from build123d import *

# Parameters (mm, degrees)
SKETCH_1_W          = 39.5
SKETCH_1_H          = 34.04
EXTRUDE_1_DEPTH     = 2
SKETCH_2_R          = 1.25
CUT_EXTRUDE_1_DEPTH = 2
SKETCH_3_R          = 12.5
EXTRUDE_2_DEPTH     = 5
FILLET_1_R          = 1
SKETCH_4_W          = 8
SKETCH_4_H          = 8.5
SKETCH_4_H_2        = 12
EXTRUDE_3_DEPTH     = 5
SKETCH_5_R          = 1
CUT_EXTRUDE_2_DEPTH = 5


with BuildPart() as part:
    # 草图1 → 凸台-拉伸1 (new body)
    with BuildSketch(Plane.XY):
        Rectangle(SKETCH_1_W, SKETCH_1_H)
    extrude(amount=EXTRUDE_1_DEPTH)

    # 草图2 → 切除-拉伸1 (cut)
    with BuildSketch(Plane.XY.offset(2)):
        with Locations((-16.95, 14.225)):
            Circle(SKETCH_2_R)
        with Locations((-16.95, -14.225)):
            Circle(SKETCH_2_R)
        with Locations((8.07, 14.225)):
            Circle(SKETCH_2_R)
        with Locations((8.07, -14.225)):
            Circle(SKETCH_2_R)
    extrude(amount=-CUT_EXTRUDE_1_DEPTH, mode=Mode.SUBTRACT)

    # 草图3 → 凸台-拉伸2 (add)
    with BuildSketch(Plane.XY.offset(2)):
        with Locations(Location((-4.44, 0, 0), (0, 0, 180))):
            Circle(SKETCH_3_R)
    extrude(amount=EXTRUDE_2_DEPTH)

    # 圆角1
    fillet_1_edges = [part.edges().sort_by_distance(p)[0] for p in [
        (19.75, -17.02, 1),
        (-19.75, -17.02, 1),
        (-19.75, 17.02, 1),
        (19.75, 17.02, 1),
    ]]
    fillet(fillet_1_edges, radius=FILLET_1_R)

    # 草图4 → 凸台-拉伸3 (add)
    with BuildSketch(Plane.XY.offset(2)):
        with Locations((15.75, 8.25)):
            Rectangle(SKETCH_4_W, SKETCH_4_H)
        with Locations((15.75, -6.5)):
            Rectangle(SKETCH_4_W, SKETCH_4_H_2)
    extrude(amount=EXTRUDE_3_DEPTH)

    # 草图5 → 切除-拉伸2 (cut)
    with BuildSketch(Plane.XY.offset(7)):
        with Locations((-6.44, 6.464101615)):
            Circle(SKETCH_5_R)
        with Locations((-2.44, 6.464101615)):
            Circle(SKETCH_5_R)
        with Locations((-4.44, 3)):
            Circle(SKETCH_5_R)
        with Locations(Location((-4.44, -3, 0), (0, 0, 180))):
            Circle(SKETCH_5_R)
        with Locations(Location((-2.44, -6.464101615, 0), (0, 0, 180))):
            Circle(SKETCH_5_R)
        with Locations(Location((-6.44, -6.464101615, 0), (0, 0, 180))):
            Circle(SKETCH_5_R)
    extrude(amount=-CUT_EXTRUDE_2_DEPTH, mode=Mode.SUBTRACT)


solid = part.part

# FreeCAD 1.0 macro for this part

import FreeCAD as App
import Part
import Sketcher
Q = App.Units.Quantity


def edges_at(feature, points):
    """Names of the edges that pass closest to the given points."""
    edges = feature.Shape.Edges
    near = lambda p: min(range(len(edges)), key=lambda i: edges[i].distToShape(Part.Vertex(*p))[0])
    return sorted({f"Edge{near(p) + 1}" for p in points})

doc = App.newDocument("Part")
body = doc.addObject("PartDesign::Body", "Body")

sketch1 = body.newObject("Sketcher::SketchObject", "Sketch")
sketch1.AttachmentSupport = (doc.getObject("XY_Plane"), [""])
sketch1.MapMode = "FlatFace"
sketch1.addGeometry([
    Part.LineSegment(App.Vector(-19.75, 17.02, 0), App.Vector(-19.75, -17.02, 0)),
    Part.LineSegment(App.Vector(-19.75, -17.02, 0), App.Vector(19.75, -17.02, 0)),
    Part.LineSegment(App.Vector(19.75, -17.02, 0), App.Vector(19.75, 17.02, 0)),
    Part.LineSegment(App.Vector(19.75, 17.02, 0), App.Vector(-19.75, 17.02, 0)),
], False)
sketch1.addConstraint([
    Sketcher.Constraint("Coincident", 0, 2, 1, 1),
    Sketcher.Constraint("Coincident", 1, 2, 2, 1),
    Sketcher.Constraint("Coincident", 2, 2, 3, 1),
    Sketcher.Constraint("Coincident", 3, 2, 0, 1),
    Sketcher.Constraint("Vertical", 0),
    Sketcher.Constraint("Horizontal", 1),
    Sketcher.Constraint("Vertical", 2),
    Sketcher.Constraint("Horizontal", 3),
    Sketcher.Constraint("Symmetric", 0, 2, 2, 2, -1, 1),
    Sketcher.Constraint("DistanceX", 1, 1, 1, 2, Q("39.5 mm")),
    Sketcher.Constraint("DistanceY", 0, 2, 0, 1, Q("34.04 mm")),
])
pad1 = body.newObject("PartDesign::Pad", "Pad")
pad1.Profile = sketch1
pad1.Length = 2

sketch2 = body.newObject("Sketcher::SketchObject", "Sketch001")
sketch2.AttachmentSupport = (doc.getObject("XY_Plane"), [""])
sketch2.MapMode = "FlatFace"
sketch2.AttachmentOffset = App.Placement(App.Vector(0, 0, 2), App.Rotation())
sketch2.addGeometry([
    Part.Circle(App.Vector(-16.95, 14.225, 0), App.Vector(0, 0, 1), 1.25),
    Part.Circle(App.Vector(-16.95, -14.225, 0), App.Vector(0, 0, 1), 1.25),
    Part.Circle(App.Vector(8.07, 14.225, 0), App.Vector(0, 0, 1), 1.25),
    Part.Circle(App.Vector(8.07, -14.225, 0), App.Vector(0, 0, 1), 1.25),
], False)
sketch2.addConstraint([
    Sketcher.Constraint("Equal", 0, 1),
    Sketcher.Constraint("Equal", 1, 2),
    Sketcher.Constraint("Equal", 2, 3),
    Sketcher.Constraint("Symmetric", 0, 3, 1, 3, -1),
    Sketcher.Constraint("Symmetric", 2, 3, 3, 3, -1),
    Sketcher.Constraint("Horizontal", 0, 3, 2, 3),
    Sketcher.Constraint("Diameter", 0, Q("2.5 mm")),
    Sketcher.Constraint("DistanceX", 0, 3, -1, 1, Q("16.95 mm")),
    Sketcher.Constraint("DistanceX", -1, 1, 2, 3, Q("8.07 mm")),
    Sketcher.Constraint("DistanceY", 1, 3, 0, 3, Q("28.45 mm")),
])
pocket1 = body.newObject("PartDesign::Pocket", "Pocket")
pocket1.Profile = sketch2
pocket1.Length = 2

sketch3 = body.newObject("Sketcher::SketchObject", "Sketch002")
sketch3.AttachmentSupport = (doc.getObject("XY_Plane"), [""])
sketch3.MapMode = "FlatFace"
sketch3.AttachmentOffset = App.Placement(App.Vector(0, 0, 2), App.Rotation())
sketch3.addGeometry(Part.Circle(App.Vector(-4.44, 0, 0), App.Vector(0, 0, 1), 12.5), False)
sketch3.addConstraint([
    Sketcher.Constraint("PointOnObject", 0, 3, -1),
    Sketcher.Constraint("Diameter", 0, Q("25 mm")),
    Sketcher.Constraint("DistanceX", 0, 3, -1, 1, Q("4.44 mm")),
])
pad2 = body.newObject("PartDesign::Pad", "Pad001")
pad2.Profile = sketch3
pad2.Length = 5
doc.recompute()

fillet = body.newObject("PartDesign::Fillet", "Fillet")
fillet.Base = (pad2, edges_at(pad2, [
    (19.75, -17.02, 1),
    (-19.75, -17.02, 1),
    (-19.75, 17.02, 1),
    (19.75, 17.02, 1),
]))
fillet.Radius = 1

sketch4 = body.newObject("Sketcher::SketchObject", "Sketch003")
sketch4.AttachmentSupport = (doc.getObject("XY_Plane"), [""])
sketch4.MapMode = "FlatFace"
sketch4.AttachmentOffset = App.Placement(App.Vector(0, 0, 2), App.Rotation())
sketch4.addGeometry([
    Part.LineSegment(App.Vector(11.75, 12.5, 0), App.Vector(11.75, 4, 0)),
    Part.LineSegment(App.Vector(11.75, 4, 0), App.Vector(19.75, 4, 0)),
    Part.LineSegment(App.Vector(19.75, 4, 0), App.Vector(19.75, 12.5, 0)),
    Part.LineSegment(App.Vector(19.75, 12.5, 0), App.Vector(11.75, 12.5, 0)),
    Part.LineSegment(App.Vector(11.75, -0.5, 0), App.Vector(11.75, -12.5, 0)),
    Part.LineSegment(App.Vector(11.75, -12.5, 0), App.Vector(19.75, -12.5, 0)),
    Part.LineSegment(App.Vector(19.75, -12.5, 0), App.Vector(19.75, -0.5, 0)),
    Part.LineSegment(App.Vector(19.75, -0.5, 0), App.Vector(11.75, -0.5, 0)),
], False)
sketch4.addConstraint([
    Sketcher.Constraint("Coincident", 0, 2, 1, 1),
    Sketcher.Constraint("Coincident", 1, 2, 2, 1),
    Sketcher.Constraint("Coincident", 2, 2, 3, 1),
    Sketcher.Constraint("Coincident", 3, 2, 0, 1),
    Sketcher.Constraint("Coincident", 4, 2, 5, 1),
    Sketcher.Constraint("Coincident", 5, 2, 6, 1),
    Sketcher.Constraint("Coincident", 6, 2, 7, 1),
    Sketcher.Constraint("Coincident", 7, 2, 4, 1),
    Sketcher.Constraint("Vertical", 0),
    Sketcher.Constraint("Horizontal", 1),
    Sketcher.Constraint("Vertical", 2),
    Sketcher.Constraint("Horizontal", 3),
    Sketcher.Constraint("Vertical", 4),
    Sketcher.Constraint("Horizontal", 5),
    Sketcher.Constraint("Vertical", 6),
    Sketcher.Constraint("Horizontal", 7),
    Sketcher.Constraint("Symmetric", 3, 2, 4, 2, -1),
    Sketcher.Constraint("Vertical", 2, 2, 5, 2),
    Sketcher.Constraint("DistanceX", 1, 1, 1, 2, Q("8 mm")),
    Sketcher.Constraint("DistanceY", 4, 2, 4, 1, Q("12 mm")),
    Sketcher.Constraint("DistanceY", 0, 2, 0, 1, Q("8.5 mm")),
    Sketcher.Constraint("DistanceY", -1, 1, 0, 2, Q("4 mm")),
    Sketcher.Constraint("DistanceX", -1, 1, 0, 2, Q("11.75 mm")),
])
pad3 = body.newObject("PartDesign::Pad", "Pad002")
pad3.Profile = sketch4
pad3.Length = 5

sketch5 = body.newObject("Sketcher::SketchObject", "Sketch004")
sketch5.AttachmentSupport = (doc.getObject("XY_Plane"), [""])
sketch5.MapMode = "FlatFace"
sketch5.AttachmentOffset = App.Placement(App.Vector(0, 0, 7), App.Rotation())
sketch5.addGeometry([
    Part.Circle(App.Vector(-6.44, 6.464102, 0), App.Vector(0, 0, 1), 1),
    Part.Circle(App.Vector(-2.44, 6.464102, 0), App.Vector(0, 0, 1), 1),
    Part.Circle(App.Vector(-4.44, 3, 0), App.Vector(0, 0, 1), 1),
    Part.Circle(App.Vector(-4.44, -3, 0), App.Vector(0, 0, 1), 1),
    Part.Circle(App.Vector(-2.44, -6.464102, 0), App.Vector(0, 0, 1), 1),
    Part.Circle(App.Vector(-6.44, -6.464102, 0), App.Vector(0, 0, 1), 1),
], False)
sketch5.addConstraint([
    Sketcher.Constraint("Equal", 0, 1),
    Sketcher.Constraint("Equal", 1, 2),
    Sketcher.Constraint("Equal", 2, 3),
    Sketcher.Constraint("Equal", 3, 4),
    Sketcher.Constraint("Equal", 4, 5),
    Sketcher.Constraint("Symmetric", 2, 3, 3, 3, -1),
    Sketcher.Constraint("Symmetric", 1, 3, 4, 3, -1),
    Sketcher.Constraint("Symmetric", 0, 3, 5, 3, -1),
    Sketcher.Constraint("Horizontal", 0, 3, 1, 3),
    Sketcher.Constraint("Diameter", 0, Q("2 mm")),
    Sketcher.Constraint("DistanceY", -1, 1, 2, 3, Q("3 mm")),
    Sketcher.Constraint("DistanceX", 0, 3, 1, 3, Q("4 mm")),
    Sketcher.Constraint("DistanceX", 0, 3, 2, 3, Q("2 mm")),
    Sketcher.Constraint("DistanceX", 0, 3, -1, 1, Q("6.44 mm")),
    Sketcher.Constraint("DistanceY", -1, 1, 0, 3, Q("6.464102 mm")),
])
pocket2 = body.newObject("PartDesign::Pocket", "Pocket001")
pocket2.Profile = sketch5
pocket2.Length = 5

doc.recompute()
